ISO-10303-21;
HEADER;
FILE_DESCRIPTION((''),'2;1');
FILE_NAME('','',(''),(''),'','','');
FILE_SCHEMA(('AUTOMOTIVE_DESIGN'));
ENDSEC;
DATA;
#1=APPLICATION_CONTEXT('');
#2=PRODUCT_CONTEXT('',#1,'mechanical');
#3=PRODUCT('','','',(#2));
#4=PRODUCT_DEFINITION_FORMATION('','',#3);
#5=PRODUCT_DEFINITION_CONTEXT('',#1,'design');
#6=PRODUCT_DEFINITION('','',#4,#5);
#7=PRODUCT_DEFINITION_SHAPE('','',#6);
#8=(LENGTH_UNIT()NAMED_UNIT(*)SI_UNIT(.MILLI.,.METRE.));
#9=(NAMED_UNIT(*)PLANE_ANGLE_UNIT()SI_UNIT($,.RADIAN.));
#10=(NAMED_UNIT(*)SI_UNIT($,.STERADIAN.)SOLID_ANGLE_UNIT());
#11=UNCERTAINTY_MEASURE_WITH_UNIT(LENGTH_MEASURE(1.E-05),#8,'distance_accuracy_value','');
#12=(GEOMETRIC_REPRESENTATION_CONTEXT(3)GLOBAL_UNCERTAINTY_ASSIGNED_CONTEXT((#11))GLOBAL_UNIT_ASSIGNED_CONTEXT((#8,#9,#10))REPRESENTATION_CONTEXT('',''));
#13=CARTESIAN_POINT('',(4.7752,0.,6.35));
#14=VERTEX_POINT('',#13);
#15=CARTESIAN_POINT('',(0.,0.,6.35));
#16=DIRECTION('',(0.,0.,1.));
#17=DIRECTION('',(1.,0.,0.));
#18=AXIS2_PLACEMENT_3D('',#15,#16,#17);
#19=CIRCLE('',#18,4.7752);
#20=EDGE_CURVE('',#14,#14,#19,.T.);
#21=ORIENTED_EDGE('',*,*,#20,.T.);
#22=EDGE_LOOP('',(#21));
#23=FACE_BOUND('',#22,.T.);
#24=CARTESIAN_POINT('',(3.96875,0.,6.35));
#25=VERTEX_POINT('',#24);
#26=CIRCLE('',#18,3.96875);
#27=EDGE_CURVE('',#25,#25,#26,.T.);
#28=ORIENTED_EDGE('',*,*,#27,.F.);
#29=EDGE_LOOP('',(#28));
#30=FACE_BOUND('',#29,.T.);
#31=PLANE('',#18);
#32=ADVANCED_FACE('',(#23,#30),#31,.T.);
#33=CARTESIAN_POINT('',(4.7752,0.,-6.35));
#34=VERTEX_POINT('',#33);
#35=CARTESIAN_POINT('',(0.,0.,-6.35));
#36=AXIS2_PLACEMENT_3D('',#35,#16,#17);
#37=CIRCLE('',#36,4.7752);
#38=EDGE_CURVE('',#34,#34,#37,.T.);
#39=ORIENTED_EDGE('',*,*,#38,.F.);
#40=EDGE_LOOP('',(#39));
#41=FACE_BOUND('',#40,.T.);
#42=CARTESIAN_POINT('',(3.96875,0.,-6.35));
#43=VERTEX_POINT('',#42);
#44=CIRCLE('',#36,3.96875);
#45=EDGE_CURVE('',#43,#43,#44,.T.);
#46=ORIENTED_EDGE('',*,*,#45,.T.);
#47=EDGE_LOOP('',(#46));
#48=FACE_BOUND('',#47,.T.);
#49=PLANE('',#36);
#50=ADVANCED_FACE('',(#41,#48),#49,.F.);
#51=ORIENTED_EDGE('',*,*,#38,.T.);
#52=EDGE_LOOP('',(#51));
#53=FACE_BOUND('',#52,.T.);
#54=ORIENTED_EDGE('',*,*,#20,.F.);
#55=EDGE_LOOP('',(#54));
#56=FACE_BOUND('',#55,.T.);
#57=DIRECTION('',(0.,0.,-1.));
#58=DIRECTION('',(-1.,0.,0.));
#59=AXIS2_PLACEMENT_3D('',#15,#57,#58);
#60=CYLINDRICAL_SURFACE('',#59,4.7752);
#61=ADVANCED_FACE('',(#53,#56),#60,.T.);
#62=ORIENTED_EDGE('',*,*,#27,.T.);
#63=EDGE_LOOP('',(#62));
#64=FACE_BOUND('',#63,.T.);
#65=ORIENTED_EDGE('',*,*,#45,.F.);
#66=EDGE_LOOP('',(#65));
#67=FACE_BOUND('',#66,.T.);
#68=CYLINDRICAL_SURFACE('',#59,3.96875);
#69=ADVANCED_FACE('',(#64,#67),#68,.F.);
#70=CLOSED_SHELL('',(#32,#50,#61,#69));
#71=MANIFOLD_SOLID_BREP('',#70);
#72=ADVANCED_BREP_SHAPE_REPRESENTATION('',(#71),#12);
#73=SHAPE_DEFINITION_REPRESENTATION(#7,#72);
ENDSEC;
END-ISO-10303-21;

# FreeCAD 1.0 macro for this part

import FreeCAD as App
import Part
import Sketcher
Q = App.Units.Quantity

doc = App.newDocument("Part")
body = doc.addObject("PartDesign::Body", "Body")

sketch1 = body.newObject("Sketcher::SketchObject", "Sketch")
sketch1.AttachmentSupport = (doc.getObject("XY_Plane"), [""])
sketch1.MapMode = "FlatFace"
sketch1.addGeometry(Part.Circle(App.Vector(0, 0, 0), App.Vector(0, 0, 1), 4.8), False)
sketch1.addGeometry(Part.Circle(App.Vector(0, 0, 0), App.Vector(0, 0, 1), 4), False)
sketch1.addConstraint(Sketcher.Constraint("Coincident", 0, 3, -1, 1))
sketch1.addConstraint(Sketcher.Constraint("Coincident", 1, 3, -1, 1))
sketch1.addConstraint(Sketcher.Constraint("Diameter", 0, Q("0.376 in")))
sketch1.addConstraint(Sketcher.Constraint("Diameter", 1, Q("0.3125 in")))
pad1 = body.newObject("PartDesign::Pad", "Pad")
pad1.Profile = sketch1
pad1.Length = Q("0.5 in")
pad1.Midplane = True

doc.recompute()
